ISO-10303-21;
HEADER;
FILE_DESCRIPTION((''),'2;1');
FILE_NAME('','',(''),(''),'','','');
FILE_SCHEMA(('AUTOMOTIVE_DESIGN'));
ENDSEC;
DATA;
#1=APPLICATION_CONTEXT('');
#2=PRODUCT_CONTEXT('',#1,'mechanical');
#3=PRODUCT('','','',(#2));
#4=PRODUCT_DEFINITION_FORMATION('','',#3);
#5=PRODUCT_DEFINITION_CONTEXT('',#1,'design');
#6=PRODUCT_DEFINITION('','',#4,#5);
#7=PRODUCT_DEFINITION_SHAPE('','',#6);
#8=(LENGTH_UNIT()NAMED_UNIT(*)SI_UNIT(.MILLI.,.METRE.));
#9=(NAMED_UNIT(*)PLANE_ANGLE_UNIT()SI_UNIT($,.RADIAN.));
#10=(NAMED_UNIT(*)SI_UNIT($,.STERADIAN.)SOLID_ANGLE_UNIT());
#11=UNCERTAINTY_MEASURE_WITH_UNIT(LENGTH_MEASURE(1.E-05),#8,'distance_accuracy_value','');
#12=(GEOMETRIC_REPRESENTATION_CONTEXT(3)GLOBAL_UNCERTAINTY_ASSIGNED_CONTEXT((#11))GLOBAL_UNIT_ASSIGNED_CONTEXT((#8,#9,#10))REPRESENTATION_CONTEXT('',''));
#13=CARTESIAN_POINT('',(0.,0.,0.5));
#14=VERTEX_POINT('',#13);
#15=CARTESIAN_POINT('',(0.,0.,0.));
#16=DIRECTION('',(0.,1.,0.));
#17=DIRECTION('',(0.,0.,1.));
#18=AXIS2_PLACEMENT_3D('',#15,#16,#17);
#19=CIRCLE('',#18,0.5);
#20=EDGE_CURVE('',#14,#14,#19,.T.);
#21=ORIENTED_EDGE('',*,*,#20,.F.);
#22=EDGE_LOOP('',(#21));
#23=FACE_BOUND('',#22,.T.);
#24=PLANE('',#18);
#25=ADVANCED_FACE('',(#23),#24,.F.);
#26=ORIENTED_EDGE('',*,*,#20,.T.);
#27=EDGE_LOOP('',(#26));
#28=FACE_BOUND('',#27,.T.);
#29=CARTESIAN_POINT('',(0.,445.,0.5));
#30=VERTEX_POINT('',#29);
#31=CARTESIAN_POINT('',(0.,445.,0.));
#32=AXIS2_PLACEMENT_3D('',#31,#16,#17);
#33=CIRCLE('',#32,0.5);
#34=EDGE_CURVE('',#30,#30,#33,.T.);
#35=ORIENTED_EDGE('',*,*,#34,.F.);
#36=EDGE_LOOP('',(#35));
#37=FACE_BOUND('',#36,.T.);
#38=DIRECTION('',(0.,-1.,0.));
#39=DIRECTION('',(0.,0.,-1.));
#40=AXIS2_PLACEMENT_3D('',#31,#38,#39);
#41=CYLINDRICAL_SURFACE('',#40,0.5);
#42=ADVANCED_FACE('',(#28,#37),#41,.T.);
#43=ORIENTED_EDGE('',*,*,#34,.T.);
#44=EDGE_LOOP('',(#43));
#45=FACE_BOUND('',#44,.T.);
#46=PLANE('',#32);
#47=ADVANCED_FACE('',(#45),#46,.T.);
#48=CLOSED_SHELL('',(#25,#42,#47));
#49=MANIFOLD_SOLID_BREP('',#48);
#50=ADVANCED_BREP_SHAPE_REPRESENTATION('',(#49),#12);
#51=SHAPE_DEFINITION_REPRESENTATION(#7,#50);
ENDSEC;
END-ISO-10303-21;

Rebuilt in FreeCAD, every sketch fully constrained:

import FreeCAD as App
import Part
import Sketcher

V = App.Vector
Q = App.Units.Quantity

doc = App.newDocument("Part")
params = doc.addObject("Spreadsheet::Sheet", "Params")
for row, (alias, value) in enumerate([
    ("sketch1_diameter", "1 mm"),
    ("pad1_length", "445 mm"),
], start=1):
    params.set(f"A{row}", alias)
    params.set(f"B{row}", "=" + value)
    params.setAlias(f"B{row}", alias)

body = doc.addObject("PartDesign::Body", "Body")

# Sketch on XZ plane
sketch1 = body.newObject("Sketcher::SketchObject", "Sketch")
sketch1.AttachmentSupport = (doc.getObject("XZ_Plane"), [""])
sketch1.MapMode = "FlatFace"
sketch1.addGeometry(Part.Circle(V(0, 0, 0), V(0, 0, 1), 0.5), False)
sketch1.addConstraint(Sketcher.Constraint("Coincident", 0, 3, -1, 1))
sketch1.addConstraint(Sketcher.Constraint("Diameter", 0, Q("1 mm")))
sketch1.setExpression("Constraints[1]", "Params.sketch1_diameter")
pad1 = body.newObject("PartDesign::Pad", "Pad")
pad1.Profile = sketch1
pad1.setExpression("Length", "Params.pad1_length")
pad1.Reversed = True

doc.recompute()
